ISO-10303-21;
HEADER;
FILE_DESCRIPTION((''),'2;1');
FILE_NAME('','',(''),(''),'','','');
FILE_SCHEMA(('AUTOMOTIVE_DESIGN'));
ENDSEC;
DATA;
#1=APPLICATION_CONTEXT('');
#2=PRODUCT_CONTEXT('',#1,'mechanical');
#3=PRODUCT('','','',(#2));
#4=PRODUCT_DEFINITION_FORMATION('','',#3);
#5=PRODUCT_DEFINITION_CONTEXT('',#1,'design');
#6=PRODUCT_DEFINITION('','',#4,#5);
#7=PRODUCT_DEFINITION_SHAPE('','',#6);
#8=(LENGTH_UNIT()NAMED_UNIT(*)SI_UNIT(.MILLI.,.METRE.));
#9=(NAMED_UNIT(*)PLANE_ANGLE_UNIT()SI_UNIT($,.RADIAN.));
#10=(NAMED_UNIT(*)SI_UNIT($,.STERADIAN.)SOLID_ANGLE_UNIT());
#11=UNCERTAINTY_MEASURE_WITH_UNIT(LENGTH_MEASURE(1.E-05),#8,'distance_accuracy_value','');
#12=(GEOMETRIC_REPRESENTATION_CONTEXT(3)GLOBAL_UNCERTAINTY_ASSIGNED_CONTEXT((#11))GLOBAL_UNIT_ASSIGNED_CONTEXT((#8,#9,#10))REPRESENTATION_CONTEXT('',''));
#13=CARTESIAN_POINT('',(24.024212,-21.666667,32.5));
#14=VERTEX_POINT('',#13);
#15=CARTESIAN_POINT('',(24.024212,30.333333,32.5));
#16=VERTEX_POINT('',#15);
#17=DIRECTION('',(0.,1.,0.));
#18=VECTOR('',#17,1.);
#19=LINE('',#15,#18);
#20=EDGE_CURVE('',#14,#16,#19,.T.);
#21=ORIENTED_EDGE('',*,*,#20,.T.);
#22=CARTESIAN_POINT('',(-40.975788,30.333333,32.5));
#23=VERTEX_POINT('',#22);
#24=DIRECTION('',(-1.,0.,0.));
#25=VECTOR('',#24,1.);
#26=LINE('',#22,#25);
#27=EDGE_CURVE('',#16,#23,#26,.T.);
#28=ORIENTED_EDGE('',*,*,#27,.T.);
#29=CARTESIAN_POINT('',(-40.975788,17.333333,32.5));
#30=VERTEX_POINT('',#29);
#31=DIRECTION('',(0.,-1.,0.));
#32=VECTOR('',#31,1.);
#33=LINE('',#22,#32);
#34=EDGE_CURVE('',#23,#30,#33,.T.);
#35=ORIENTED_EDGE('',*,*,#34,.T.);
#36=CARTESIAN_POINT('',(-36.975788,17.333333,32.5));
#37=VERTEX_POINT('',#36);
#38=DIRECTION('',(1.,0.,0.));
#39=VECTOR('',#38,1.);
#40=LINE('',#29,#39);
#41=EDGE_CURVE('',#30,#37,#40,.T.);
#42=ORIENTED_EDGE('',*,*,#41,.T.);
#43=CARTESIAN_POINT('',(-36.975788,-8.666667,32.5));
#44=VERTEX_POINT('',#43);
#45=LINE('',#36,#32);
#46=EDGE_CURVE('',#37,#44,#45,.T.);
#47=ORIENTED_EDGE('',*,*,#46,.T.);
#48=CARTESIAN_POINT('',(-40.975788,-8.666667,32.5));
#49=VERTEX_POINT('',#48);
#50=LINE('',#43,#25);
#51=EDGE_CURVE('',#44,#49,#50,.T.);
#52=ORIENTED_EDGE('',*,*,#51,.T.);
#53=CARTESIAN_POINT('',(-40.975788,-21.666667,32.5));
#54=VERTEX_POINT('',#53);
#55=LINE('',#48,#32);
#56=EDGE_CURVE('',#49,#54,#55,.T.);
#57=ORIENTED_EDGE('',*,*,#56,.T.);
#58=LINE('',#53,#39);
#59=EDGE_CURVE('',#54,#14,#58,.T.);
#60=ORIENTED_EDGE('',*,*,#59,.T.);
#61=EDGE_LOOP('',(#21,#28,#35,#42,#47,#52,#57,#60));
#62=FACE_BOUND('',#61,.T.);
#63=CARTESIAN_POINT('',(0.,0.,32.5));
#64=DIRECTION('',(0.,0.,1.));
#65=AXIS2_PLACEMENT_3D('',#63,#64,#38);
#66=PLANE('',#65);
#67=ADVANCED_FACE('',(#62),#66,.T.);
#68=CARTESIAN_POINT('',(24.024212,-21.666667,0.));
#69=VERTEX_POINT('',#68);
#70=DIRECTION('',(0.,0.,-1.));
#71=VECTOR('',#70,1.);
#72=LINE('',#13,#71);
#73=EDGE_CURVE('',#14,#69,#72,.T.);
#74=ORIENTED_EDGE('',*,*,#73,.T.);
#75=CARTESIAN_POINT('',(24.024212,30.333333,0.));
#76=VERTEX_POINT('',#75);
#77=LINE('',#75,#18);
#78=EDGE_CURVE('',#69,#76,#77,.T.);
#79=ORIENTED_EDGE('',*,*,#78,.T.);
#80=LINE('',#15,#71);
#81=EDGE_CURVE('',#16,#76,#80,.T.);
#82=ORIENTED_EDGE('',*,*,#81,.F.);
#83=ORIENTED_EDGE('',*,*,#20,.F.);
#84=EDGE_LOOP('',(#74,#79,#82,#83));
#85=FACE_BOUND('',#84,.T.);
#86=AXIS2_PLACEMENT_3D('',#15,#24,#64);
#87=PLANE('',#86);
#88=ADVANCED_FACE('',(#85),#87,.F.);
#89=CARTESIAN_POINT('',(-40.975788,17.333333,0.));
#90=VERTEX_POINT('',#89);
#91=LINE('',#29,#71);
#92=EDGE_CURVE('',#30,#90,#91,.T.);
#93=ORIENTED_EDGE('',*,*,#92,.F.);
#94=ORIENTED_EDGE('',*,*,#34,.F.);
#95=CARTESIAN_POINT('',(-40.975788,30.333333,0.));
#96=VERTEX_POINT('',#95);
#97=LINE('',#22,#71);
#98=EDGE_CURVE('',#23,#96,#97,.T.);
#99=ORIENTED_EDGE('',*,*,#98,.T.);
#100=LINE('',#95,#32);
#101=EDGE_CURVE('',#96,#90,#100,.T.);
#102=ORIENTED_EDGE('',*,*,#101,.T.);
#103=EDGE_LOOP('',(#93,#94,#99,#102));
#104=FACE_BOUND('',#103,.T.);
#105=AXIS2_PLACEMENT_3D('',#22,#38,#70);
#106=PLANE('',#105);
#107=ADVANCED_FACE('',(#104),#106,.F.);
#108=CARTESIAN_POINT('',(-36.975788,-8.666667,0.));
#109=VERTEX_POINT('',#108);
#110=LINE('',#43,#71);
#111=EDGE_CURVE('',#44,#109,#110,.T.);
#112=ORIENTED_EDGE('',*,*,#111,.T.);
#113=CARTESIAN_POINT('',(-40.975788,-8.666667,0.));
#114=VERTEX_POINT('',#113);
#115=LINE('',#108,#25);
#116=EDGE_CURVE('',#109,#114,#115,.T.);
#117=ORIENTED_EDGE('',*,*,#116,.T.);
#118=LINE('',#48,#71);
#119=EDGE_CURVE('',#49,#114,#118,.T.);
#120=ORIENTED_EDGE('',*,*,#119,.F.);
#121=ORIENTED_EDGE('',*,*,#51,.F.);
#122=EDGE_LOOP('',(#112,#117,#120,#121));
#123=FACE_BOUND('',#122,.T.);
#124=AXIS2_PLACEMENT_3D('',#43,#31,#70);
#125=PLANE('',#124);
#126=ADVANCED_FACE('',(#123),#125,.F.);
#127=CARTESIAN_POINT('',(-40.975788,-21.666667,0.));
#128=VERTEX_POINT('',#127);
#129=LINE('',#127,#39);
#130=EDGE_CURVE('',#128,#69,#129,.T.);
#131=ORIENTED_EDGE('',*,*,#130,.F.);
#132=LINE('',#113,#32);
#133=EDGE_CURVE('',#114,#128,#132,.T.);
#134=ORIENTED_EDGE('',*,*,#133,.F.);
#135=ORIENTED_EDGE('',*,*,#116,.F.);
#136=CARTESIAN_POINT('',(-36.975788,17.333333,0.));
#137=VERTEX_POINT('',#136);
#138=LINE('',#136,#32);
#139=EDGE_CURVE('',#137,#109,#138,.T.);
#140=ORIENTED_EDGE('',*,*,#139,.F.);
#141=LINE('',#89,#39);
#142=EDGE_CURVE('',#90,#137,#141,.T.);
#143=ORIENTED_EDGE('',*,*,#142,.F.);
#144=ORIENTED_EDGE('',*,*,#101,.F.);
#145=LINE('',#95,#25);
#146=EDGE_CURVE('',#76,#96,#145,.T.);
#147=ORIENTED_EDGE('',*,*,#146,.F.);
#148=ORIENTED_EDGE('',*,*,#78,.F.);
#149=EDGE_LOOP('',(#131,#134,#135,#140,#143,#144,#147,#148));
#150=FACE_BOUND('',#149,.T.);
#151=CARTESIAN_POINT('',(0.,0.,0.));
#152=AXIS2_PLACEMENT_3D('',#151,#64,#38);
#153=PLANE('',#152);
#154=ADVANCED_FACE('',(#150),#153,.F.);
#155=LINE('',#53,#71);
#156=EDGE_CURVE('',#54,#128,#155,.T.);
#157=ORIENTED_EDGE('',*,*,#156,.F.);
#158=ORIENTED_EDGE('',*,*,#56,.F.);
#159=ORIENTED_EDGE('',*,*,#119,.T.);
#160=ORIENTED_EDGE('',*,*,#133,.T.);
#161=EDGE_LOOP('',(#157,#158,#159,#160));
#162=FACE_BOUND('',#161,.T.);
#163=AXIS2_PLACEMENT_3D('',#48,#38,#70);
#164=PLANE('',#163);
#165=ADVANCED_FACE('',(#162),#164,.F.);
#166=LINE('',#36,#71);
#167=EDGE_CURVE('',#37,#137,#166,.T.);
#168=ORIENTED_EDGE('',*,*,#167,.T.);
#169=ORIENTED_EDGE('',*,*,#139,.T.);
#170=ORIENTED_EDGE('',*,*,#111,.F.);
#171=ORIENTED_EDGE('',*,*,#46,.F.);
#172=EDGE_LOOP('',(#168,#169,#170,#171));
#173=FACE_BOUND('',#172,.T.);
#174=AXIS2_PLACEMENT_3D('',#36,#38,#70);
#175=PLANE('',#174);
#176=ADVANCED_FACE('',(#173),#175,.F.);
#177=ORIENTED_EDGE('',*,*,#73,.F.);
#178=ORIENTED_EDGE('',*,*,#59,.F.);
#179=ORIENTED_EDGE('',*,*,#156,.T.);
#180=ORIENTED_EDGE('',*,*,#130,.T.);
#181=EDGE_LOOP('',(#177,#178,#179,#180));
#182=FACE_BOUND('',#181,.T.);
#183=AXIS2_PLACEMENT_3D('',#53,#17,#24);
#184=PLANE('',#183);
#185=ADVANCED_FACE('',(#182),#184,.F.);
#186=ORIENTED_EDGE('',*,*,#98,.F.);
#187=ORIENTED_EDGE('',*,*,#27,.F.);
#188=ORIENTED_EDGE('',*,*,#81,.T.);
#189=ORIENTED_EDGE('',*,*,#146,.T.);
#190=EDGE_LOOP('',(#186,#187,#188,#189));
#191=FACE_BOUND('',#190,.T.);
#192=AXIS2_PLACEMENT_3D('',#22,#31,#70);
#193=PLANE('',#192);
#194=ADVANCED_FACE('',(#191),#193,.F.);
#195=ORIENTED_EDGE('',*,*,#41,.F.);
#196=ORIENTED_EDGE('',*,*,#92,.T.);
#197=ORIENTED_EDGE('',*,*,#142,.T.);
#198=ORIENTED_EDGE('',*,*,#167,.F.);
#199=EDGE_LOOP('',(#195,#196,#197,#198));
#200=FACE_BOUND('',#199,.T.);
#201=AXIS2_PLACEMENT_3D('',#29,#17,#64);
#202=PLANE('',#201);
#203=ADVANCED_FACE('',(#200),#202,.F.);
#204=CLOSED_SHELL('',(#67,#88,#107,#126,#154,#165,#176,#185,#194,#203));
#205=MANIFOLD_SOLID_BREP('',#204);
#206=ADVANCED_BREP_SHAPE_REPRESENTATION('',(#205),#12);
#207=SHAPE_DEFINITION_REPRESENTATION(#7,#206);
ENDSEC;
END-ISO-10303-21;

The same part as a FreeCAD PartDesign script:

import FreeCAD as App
import Part
import Sketcher
Q = App.Units.Quantity


def add_polygon(sketch, points):
    """Adds a closed chain of lines whose ends are joined by coincident constraints."""
    first, n = sketch.GeometryCount, len(points)
    for a, b in zip(points, points[1:] + points[:1]):
        sketch.addGeometry(Part.LineSegment(App.Vector(*a, 0), App.Vector(*b, 0)), False)
    for i in range(n):
        sketch.addConstraint(Sketcher.Constraint("Coincident", first + i, 2, first + (i + 1) % n, 1))

doc = App.newDocument("Part")
body = doc.addObject("PartDesign::Body", "Body")

# Sketch on XY plane
sketch1 = body.newObject("Sketcher::SketchObject", "Sketch")
sketch1.AttachmentSupport = (doc.getObject("XY_Plane"), [""])
sketch1.MapMode = "FlatFace"
add_polygon(sketch1, [(-41, 17.3), (-37, 17.3), (-37, -8.7), (-41, -8.7), (-41, -21.7), (24, -21.7), (24, 30.3), (-41, 30.3)])  # lines 0-7
sketch1.addConstraint(Sketcher.Constraint("Horizontal", 0))
sketch1.addConstraint(Sketcher.Constraint("Vertical", 1))
sketch1.addConstraint(Sketcher.Constraint("Horizontal", 2))
sketch1.addConstraint(Sketcher.Constraint("Vertical", 3))
sketch1.addConstraint(Sketcher.Constraint("Horizontal", 4))
sketch1.addConstraint(Sketcher.Constraint("Vertical", 5))
sketch1.addConstraint(Sketcher.Constraint("Horizontal", 6))
sketch1.addConstraint(Sketcher.Constraint("Vertical", 7))
sketch1.addConstraint(Sketcher.Constraint("Vertical", 3, 2, 6, 2))
sketch1.addConstraint(Sketcher.Constraint("Equal", 3, 7))
sketch1.addConstraint(Sketcher.Constraint("DistanceX", 0, 1, 0, 2, Q("4 mm")))
sketch1.addConstraint(Sketcher.Constraint("DistanceX", 4, 1, 4, 2, Q("65 mm")))
sketch1.addConstraint(Sketcher.Constraint("DistanceY", 1, 2, 1, 1, Q("26 mm")))
sketch1.addConstraint(Sketcher.Constraint("DistanceY", 3, 2, 3, 1, Q("13 mm")))
sketch1.addConstraint(Sketcher.Constraint("DistanceX", 0, 2, -1, 1, Q("36.975788 mm")))
sketch1.addConstraint(Sketcher.Constraint("DistanceY", -1, 1, 0, 2, Q("17.333333 mm")))
pad1 = body.newObject("PartDesign::Pad", "Pad")
pad1.Profile = sketch1
pad1.Length = 32.5

doc.recompute()
